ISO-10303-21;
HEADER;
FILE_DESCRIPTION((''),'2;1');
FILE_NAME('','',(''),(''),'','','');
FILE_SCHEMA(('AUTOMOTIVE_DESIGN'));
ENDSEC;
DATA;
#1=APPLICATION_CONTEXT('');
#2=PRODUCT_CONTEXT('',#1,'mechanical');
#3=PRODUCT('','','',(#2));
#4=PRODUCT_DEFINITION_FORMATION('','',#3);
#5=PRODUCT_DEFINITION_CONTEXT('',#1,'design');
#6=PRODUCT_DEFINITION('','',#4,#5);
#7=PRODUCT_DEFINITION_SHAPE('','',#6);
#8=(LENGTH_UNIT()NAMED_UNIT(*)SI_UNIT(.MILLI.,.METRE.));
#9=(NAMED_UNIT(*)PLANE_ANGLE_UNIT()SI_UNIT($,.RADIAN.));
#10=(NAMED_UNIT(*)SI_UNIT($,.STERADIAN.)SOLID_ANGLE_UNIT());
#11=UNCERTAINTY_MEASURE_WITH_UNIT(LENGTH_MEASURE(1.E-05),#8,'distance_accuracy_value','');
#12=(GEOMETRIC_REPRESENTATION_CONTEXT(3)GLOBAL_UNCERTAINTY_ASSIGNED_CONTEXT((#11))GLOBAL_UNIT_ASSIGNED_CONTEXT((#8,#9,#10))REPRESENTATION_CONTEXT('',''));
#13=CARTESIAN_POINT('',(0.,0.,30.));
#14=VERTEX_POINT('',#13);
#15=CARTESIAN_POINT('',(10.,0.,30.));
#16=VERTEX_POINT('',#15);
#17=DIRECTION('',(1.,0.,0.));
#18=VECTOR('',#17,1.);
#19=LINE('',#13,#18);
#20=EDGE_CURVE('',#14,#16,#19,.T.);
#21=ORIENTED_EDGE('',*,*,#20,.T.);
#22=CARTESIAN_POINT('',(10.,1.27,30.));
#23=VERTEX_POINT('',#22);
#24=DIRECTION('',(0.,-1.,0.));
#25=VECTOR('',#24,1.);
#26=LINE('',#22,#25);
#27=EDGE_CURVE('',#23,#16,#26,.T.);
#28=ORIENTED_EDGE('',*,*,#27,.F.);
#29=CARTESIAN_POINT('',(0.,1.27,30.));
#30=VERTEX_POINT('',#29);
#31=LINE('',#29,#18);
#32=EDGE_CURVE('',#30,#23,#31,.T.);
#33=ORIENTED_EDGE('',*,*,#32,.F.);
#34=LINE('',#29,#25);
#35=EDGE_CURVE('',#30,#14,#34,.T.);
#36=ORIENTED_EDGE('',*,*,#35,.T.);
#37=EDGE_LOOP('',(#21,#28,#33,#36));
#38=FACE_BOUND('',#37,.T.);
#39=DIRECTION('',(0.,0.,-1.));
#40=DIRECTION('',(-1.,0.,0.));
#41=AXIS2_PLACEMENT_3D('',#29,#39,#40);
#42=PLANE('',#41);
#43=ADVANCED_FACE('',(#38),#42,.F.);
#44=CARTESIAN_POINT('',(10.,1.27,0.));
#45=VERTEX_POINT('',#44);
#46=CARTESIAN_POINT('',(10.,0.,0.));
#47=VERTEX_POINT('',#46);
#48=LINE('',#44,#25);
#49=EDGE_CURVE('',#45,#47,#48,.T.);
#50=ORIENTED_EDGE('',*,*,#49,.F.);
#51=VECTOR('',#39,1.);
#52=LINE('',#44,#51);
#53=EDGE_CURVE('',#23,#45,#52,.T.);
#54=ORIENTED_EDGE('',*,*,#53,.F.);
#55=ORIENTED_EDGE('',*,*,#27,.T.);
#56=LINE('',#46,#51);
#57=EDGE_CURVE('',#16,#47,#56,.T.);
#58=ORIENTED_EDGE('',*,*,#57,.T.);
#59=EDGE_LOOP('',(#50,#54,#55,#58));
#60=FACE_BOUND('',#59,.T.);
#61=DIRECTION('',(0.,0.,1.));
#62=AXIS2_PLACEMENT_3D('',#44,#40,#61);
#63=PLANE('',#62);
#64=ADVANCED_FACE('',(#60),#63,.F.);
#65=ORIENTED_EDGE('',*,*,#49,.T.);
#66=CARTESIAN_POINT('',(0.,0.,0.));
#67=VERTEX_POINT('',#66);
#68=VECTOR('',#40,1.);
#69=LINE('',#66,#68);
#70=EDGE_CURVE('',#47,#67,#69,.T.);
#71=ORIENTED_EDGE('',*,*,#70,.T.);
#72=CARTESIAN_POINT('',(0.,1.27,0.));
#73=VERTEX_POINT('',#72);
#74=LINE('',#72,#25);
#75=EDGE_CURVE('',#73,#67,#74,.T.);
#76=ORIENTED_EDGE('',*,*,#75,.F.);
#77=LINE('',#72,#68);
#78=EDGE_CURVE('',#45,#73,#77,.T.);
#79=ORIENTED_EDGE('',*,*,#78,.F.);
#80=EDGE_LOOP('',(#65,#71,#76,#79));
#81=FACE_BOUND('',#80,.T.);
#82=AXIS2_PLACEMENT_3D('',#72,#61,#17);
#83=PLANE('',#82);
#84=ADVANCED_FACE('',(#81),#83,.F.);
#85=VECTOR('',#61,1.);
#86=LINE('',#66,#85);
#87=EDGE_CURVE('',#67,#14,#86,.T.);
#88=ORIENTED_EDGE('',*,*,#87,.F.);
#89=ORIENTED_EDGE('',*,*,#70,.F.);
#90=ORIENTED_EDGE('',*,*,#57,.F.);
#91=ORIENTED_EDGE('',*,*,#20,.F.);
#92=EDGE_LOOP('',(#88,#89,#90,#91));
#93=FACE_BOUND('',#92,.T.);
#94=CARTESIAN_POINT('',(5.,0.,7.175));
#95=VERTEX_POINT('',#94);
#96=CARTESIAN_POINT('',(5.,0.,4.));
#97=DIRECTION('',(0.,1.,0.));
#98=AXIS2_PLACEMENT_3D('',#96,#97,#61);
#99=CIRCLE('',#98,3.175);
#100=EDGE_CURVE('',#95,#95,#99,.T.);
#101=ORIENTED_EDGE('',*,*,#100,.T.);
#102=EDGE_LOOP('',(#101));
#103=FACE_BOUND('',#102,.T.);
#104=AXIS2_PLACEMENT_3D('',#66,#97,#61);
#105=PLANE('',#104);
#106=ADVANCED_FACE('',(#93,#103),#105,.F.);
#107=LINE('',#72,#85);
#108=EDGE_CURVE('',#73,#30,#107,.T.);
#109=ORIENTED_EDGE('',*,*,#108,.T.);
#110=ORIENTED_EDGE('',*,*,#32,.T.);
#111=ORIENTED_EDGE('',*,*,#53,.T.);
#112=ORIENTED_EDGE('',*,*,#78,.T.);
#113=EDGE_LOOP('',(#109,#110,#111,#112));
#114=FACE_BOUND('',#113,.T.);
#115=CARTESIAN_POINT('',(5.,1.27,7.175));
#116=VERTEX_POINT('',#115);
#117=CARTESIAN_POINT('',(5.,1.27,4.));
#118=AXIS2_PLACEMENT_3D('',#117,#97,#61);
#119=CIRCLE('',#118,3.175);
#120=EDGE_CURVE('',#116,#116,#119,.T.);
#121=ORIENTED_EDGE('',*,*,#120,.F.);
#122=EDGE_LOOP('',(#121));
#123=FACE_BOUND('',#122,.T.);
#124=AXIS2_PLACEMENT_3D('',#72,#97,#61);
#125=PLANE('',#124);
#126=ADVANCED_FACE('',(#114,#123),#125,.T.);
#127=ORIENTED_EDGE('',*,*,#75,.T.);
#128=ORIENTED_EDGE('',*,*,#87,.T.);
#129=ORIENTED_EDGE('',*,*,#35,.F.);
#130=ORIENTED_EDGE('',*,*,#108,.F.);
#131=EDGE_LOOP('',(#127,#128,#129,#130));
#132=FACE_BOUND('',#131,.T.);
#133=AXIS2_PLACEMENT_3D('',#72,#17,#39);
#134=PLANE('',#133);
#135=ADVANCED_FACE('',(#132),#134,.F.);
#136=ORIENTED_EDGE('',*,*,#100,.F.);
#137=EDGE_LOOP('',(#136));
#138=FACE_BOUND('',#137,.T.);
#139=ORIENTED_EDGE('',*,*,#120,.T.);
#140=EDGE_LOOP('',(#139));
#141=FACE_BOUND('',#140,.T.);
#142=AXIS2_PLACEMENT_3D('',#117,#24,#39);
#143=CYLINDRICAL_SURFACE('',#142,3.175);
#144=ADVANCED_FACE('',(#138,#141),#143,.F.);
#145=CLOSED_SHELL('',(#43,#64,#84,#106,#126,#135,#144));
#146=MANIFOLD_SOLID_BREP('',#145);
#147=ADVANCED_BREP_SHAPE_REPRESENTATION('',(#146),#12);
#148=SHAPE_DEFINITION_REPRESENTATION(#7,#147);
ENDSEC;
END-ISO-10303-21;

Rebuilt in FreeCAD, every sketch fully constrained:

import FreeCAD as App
import Part
import Sketcher

V = App.Vector


def add_polygon(sketch, points):
    """Adds a closed chain of lines whose ends are joined by coincident constraints."""
    first, n = sketch.GeometryCount, len(points)
    for a, b in zip(points, points[1:] + points[:1]):
        sketch.addGeometry(Part.LineSegment(App.Vector(*a, 0), App.Vector(*b, 0)), False)
    for i in range(n):
        sketch.addConstraint(Sketcher.Constraint("Coincident", first + i, 2, first + (i + 1) % n, 1))

doc = App.newDocument("Part")
body = doc.addObject("PartDesign::Body", "Body")

# Sketch on XZ plane
sketch1 = doc.addObject("Sketcher::SketchObject", "Sketch")
body.addObject(sketch1)
sketch1.AttachmentSupport = (doc.XZ_Plane, [""])
sketch1.MapMode = "FlatFace"
add_polygon(sketch1, [(0, 0), (0, 30), (10, 30), (10, 0)])  # lines 0-3
sketch1.addGeometry(Part.Circle(V(5, 4, 0), V(0, 0, 1), 3.2), False)  # 4
sketch1.addConstraint([
    Sketcher.Constraint("Vertical", 0),
    Sketcher.Constraint("Horizontal", 1),
    Sketcher.Constraint("Vertical", 2),
    Sketcher.Constraint("Horizontal", 3),
    Sketcher.Constraint("Coincident", 3, 2, -1, 1),
    Sketcher.Constraint("Diameter", 4, 6.35),
    Sketcher.Constraint("DistanceX", 1, 1, 1, 2, 10.0),
    Sketcher.Constraint("DistanceY", 0, 1, 0, 2, 30.0),
    Sketcher.Constraint("DistanceX", -1, 1, 4, 3, 5.0),
    Sketcher.Constraint("DistanceY", -1, 1, 4, 3, 4.0),
])
pad1 = doc.addObject("PartDesign::Pad", "Pad")
body.addObject(pad1)
pad1.Profile = sketch1
pad1.Length = 1.27
pad1.Reversed = True

doc.recompute()
